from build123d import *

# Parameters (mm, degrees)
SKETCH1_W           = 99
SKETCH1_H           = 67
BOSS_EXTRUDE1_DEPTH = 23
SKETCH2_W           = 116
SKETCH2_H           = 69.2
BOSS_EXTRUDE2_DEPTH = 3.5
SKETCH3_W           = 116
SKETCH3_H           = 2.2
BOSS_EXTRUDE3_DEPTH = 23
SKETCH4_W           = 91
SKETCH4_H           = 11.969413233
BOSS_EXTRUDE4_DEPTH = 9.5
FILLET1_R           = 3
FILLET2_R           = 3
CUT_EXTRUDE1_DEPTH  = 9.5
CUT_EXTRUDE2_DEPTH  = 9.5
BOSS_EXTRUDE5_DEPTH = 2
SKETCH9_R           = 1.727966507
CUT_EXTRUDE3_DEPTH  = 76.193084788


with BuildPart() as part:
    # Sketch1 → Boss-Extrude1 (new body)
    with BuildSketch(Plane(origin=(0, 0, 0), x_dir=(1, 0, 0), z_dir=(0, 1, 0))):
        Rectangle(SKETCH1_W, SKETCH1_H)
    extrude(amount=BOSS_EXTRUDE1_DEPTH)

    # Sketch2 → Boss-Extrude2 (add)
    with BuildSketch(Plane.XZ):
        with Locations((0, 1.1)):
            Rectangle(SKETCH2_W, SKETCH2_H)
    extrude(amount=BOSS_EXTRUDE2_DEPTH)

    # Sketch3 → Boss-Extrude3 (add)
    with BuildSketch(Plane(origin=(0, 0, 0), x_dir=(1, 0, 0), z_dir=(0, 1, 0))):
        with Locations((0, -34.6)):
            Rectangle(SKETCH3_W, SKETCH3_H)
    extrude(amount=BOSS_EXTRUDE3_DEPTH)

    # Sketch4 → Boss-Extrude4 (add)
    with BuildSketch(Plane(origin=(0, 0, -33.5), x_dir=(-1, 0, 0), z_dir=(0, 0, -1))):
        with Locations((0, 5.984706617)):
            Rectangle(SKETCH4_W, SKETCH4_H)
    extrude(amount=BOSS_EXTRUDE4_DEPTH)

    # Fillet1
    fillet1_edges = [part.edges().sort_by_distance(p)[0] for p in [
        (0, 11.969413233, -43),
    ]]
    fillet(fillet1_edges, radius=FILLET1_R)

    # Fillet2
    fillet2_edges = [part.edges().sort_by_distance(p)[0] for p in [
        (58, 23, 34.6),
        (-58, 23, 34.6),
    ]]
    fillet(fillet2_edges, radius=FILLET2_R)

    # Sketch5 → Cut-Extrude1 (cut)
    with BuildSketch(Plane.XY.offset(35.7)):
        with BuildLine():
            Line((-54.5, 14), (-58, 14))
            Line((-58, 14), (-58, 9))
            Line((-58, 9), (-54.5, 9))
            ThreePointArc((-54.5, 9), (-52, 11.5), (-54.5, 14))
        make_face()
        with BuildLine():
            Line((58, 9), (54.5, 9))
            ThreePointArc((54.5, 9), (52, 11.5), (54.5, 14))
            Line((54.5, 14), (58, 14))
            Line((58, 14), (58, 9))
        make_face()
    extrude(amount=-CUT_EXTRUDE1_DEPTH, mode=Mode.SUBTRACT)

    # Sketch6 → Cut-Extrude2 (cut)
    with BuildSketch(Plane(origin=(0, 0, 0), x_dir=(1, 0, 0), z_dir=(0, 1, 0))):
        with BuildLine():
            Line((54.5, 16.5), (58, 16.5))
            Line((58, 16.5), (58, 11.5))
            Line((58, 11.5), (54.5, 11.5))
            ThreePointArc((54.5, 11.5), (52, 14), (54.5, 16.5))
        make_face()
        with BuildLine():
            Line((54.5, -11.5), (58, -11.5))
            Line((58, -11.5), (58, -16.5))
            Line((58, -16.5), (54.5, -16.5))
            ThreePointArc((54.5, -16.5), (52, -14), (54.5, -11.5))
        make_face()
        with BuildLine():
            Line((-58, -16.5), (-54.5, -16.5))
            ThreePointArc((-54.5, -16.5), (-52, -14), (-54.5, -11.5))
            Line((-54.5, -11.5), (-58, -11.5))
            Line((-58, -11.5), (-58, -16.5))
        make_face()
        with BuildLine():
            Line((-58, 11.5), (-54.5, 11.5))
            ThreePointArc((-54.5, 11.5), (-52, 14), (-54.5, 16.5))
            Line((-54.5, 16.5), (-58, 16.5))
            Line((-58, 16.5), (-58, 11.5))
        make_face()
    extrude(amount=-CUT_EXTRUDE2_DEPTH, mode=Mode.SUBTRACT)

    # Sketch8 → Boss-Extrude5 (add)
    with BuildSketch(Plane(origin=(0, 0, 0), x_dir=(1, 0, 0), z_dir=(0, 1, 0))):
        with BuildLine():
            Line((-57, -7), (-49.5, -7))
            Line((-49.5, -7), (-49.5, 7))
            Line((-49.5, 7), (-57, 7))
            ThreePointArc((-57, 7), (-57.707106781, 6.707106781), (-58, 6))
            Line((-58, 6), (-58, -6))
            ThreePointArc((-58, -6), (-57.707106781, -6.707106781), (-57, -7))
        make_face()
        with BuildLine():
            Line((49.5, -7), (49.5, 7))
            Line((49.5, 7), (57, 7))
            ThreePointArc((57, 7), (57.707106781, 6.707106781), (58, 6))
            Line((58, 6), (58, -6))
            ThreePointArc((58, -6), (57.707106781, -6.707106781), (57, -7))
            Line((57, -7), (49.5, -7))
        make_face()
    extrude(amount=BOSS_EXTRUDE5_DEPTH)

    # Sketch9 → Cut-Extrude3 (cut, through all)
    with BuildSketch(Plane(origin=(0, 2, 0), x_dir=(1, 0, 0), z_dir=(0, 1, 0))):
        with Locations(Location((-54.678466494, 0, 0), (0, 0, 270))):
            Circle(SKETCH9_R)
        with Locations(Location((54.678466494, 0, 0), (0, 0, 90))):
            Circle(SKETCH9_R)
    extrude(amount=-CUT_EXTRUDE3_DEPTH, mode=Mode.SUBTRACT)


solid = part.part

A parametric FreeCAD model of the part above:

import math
import FreeCAD as App
import Part
import Sketcher

V = App.Vector
Q = App.Units.Quantity


def edges_at(feature, points):
    """Names of the edges that pass closest to the given points."""
    edges = feature.Shape.Edges
    near = lambda p: min(range(len(edges)), key=lambda i: edges[i].distToShape(Part.Vertex(*p))[0])
    return sorted({f"Edge{near(p) + 1}" for p in points})


def add_polygon(sketch, points):
    """Adds a closed chain of lines whose ends are joined by coincident constraints."""
    first, n = sketch.GeometryCount, len(points)
    for a, b in zip(points, points[1:] + points[:1]):
        sketch.addGeometry(Part.LineSegment(App.Vector(*a, 0), App.Vector(*b, 0)), False)
    for i in range(n):
        sketch.addConstraint(Sketcher.Constraint("Coincident", first + i, 2, first + (i + 1) % n, 1))

doc = App.newDocument("Part")
body = doc.addObject("PartDesign::Body", "Body")

# Sketch on XZ plane
sketch1 = body.newObject("Sketcher::SketchObject", "Sketch")
sketch1.AttachmentSupport = (doc.getObject("XZ_Plane"), [""])
sketch1.MapMode = "FlatFace"
add_polygon(sketch1, [(-50, -34), (-50, 34), (50, 34), (50, -34)])  # lines 0-3
sketch1.addConstraint([
    Sketcher.Constraint("Vertical", 0),
    Sketcher.Constraint("Horizontal", 1),
    Sketcher.Constraint("Vertical", 2),
    Sketcher.Constraint("Horizontal", 3),
    Sketcher.Constraint("Symmetric", 0, 2, 2, 2, -1, 1),
    Sketcher.Constraint("DistanceX", 1, 1, 1, 2, Q("99 mm")),
    Sketcher.Constraint("DistanceY", 0, 1, 0, 2, Q("67 mm")),
])
pad1 = body.newObject("PartDesign::Pad", "Pad")
pad1.Profile = sketch1
pad1.Length = 23
pad1.Reversed = True

# Sketch on XZ plane
sketch2 = body.newObject("Sketcher::SketchObject", "Sketch001")
sketch2.AttachmentSupport = (doc.getObject("XZ_Plane"), [""])
sketch2.MapMode = "FlatFace"
add_polygon(sketch2, [(-58, 36), (-58, -34), (58, -34), (58, 36)])  # lines 0-3
sketch2.addConstraint([
    Sketcher.Constraint("Vertical", 0),
    Sketcher.Constraint("Horizontal", 1),
    Sketcher.Constraint("Vertical", 2),
    Sketcher.Constraint("Horizontal", 3),
    Sketcher.Constraint("DistanceX", 1, 1, 1, 2, Q("116 mm")),
    Sketcher.Constraint("DistanceY", 0, 2, 0, 1, Q("69.2 mm")),
    Sketcher.Constraint("DistanceX", 0, 2, -1, 1, Q("58 mm")),
    Sketcher.Constraint("DistanceY", 0, 2, -1, 1, Q("33.5 mm")),
])
pad2 = body.newObject("PartDesign::Pad", "Pad001")
pad2.Profile = sketch2
pad2.Length = 3.5

# Sketch on XZ plane
sketch3 = body.newObject("Sketcher::SketchObject", "Sketch002")
sketch3.AttachmentSupport = (doc.getObject("XZ_Plane"), [""])
sketch3.MapMode = "FlatFace"
add_polygon(sketch3, [(-58, 33.5), (-58, 35.7), (58, 35.7), (58, 33.5)])  # lines 0-3
sketch3.addConstraint([
    Sketcher.Constraint("Vertical", 0),
    Sketcher.Constraint("Horizontal", 1),
    Sketcher.Constraint("Vertical", 2),
    Sketcher.Constraint("Horizontal", 3),
    Sketcher.Constraint("DistanceX", 1, 1, 1, 2, Q("116 mm")),
    Sketcher.Constraint("DistanceY", 0, 1, 0, 2, Q("2.2 mm")),
    Sketcher.Constraint("DistanceX", 0, 2, -1, 1, Q("58 mm")),
    Sketcher.Constraint("DistanceY", -1, 1, 0, 2, Q("35.7 mm")),
])
pad3 = body.newObject("PartDesign::Pad", "Pad002")
pad3.Profile = sketch3
pad3.Length = 23
pad3.Reversed = True

# Sketch on XY plane
sketch4 = body.newObject("Sketcher::SketchObject", "Sketch003")
sketch4.AttachmentSupport = (doc.getObject("XY_Plane"), [""])
sketch4.MapMode = "FlatFace"
sketch4.AttachmentOffset = App.Placement(V(0, 0, -33.5), App.Rotation())
add_polygon(sketch4, [(46, 12), (46, 0), (-46, 0), (-46, 12)])  # lines 0-3
sketch4.addConstraint([
    Sketcher.Constraint("Vertical", 0),
    Sketcher.Constraint("Horizontal", 1),
    Sketcher.Constraint("Vertical", 2),
    Sketcher.Constraint("Horizontal", 3),
    Sketcher.Constraint("Symmetric", 0, 2, 1, 2, -1, 1),
    Sketcher.Constraint("DistanceX", 1, 2, 1, 1, Q("91 mm")),
    Sketcher.Constraint("DistanceY", 0, 2, 0, 1, Q("11.969413 mm")),
])
pad4 = body.newObject("PartDesign::Pad", "Pad003")
pad4.Profile = sketch4
pad4.Length = 9.5
pad4.Reversed = True
doc.recompute()

fillet = body.newObject("PartDesign::Fillet", "Fillet")
fillet.Base = (pad4, edges_at(pad4, [(0, 11.969, -43)]))
fillet.Radius = 3
doc.recompute()

fillet2 = body.newObject("PartDesign::Fillet", "Fillet001")
fillet2.Base = (fillet, edges_at(fillet, [(58, 23, 34.6), (-58, 23, 34.6)]))
fillet2.Radius = 3

# Sketch on XY plane
sketch5 = body.newObject("Sketcher::SketchObject", "Sketch004")
sketch5.AttachmentSupport = (doc.getObject("XY_Plane"), [""])
sketch5.MapMode = "FlatFace"
sketch5.AttachmentOffset = App.Placement(V(0, 0, 35.7), App.Rotation())
sketch5.addGeometry([
    Part.LineSegment(V(-54.5, 14, 0), V(-58, 14, 0)),  # 0
    Part.LineSegment(V(-58, 14, 0), V(-58, 9, 0)),  # 1
    Part.LineSegment(V(-58, 9, 0), V(-54.5, 9, 0)),  # 2
    Part.ArcOfCircle(Part.Circle(V(-54.5, 11.5, 0), V(0, 0, 1), 2.5), math.radians(-90), math.radians(90)),  # 3
    Part.LineSegment(V(54.5, 9, 0), V(58, 9, 0)),  # 4
    Part.LineSegment(V(58, 9, 0), V(58, 14, 0)),  # 5
    Part.LineSegment(V(58, 14, 0), V(54.5, 14, 0)),  # 6
    Part.ArcOfCircle(Part.Circle(V(54.5, 11.5, 0), V(0, 0, 1), 2.5), math.radians(90), math.radians(270)),  # 7
], False)
sketch5.addConstraint([
    Sketcher.Constraint("Coincident", 0, 2, 1, 1),
    Sketcher.Constraint("Coincident", 1, 2, 2, 1),
    Sketcher.Constraint("Tangent", 2, 2, 3, 1),
    Sketcher.Constraint("Tangent", 3, 2, 0, 1),
    Sketcher.Constraint("Coincident", 4, 2, 5, 1),
    Sketcher.Constraint("Coincident", 5, 2, 6, 1),
    Sketcher.Constraint("Tangent", 6, 2, 7, 1),
    Sketcher.Constraint("Tangent", 7, 2, 4, 1),
    Sketcher.Constraint("Horizontal", 0),
    Sketcher.Constraint("Vertical", 1),
    Sketcher.Constraint("Horizontal", 2),
    Sketcher.Constraint("Horizontal", 4),
    Sketcher.Constraint("Vertical", 5),
    Sketcher.Constraint("Horizontal", 6),
    Sketcher.Constraint("Equal", 3, 7),
    Sketcher.Constraint("Symmetric", 3, 3, 7, 3, -2),
    Sketcher.Constraint("Equal", 2, 4),
    Sketcher.Constraint("Radius", 3, Q("2.5 mm")),
    Sketcher.Constraint("DistanceX", 0, 2, 0, 1, Q("3.5 mm")),
    Sketcher.Constraint("DistanceX", 0, 2, -1, 1, Q("58 mm")),
    Sketcher.Constraint("DistanceY", -1, 1, 0, 2, Q("14 mm")),
])
pocket1 = body.newObject("PartDesign::Pocket", "Pocket")
pocket1.Profile = sketch5
pocket1.Length = 9.5

# Sketch on XZ plane
sketch6 = body.newObject("Sketcher::SketchObject", "Sketch005")
sketch6.AttachmentSupport = (doc.getObject("XZ_Plane"), [""])
sketch6.MapMode = "FlatFace"
sketch6.addGeometry([
    Part.LineSegment(V(58, -16.5, 0), V(54.5, -16.5, 0)),  # 0
    Part.ArcOfCircle(Part.Circle(V(54.5, -14, 0), V(0, 0, 1), 2.5), math.radians(90), math.radians(270)),  # 1
    Part.LineSegment(V(54.5, -11.5, 0), V(58, -11.5, 0)),  # 2
    Part.LineSegment(V(58, -11.5, 0), V(58, -16.5, 0)),  # 3
    Part.LineSegment(V(58, 11.5, 0), V(54.5, 11.5, 0)),  # 4
    Part.ArcOfCircle(Part.Circle(V(54.5, 14, 0), V(0, 0, 1), 2.5), math.radians(90), math.radians(270)),  # 5
    Part.LineSegment(V(54.5, 16.5, 0), V(58, 16.5, 0)),  # 6
    Part.LineSegment(V(58, 16.5, 0), V(58, 11.5, 0)),  # 7
    Part.LineSegment(V(-58, 16.5, 0), V(-54.5, 16.5, 0)),  # 8
    Part.ArcOfCircle(Part.Circle(V(-54.5, 14, 0), V(0, 0, 1), 2.5), math.radians(-90), math.radians(90)),  # 9
    Part.LineSegment(V(-54.5, 11.5, 0), V(-58, 11.5, 0)),  # 10
    Part.LineSegment(V(-58, 11.5, 0), V(-58, 16.5, 0)),  # 11
    Part.LineSegment(V(-58, -11.5, 0), V(-54.5, -11.5, 0)),  # 12
    Part.ArcOfCircle(Part.Circle(V(-54.5, -14, 0), V(0, 0, 1), 2.5), math.radians(-90), math.radians(90)),  # 13
    Part.LineSegment(V(-54.5, -16.5, 0), V(-58, -16.5, 0)),  # 14
    Part.LineSegment(V(-58, -16.5, 0), V(-58, -11.5, 0)),  # 15
], False)
sketch6.addConstraint([
    Sketcher.Constraint("Tangent", 0, 2, 1, 2),
    Sketcher.Constraint("Tangent", 1, 1, 2, 1),
    Sketcher.Constraint("Coincident", 2, 2, 3, 1),
    Sketcher.Constraint("Coincident", 3, 2, 0, 1),
    Sketcher.Constraint("Tangent", 4, 2, 5, 2),
    Sketcher.Constraint("Tangent", 5, 1, 6, 1),
    Sketcher.Constraint("Coincident", 6, 2, 7, 1),
    Sketcher.Constraint("Coincident", 7, 2, 4, 1),
    Sketcher.Constraint("Tangent", 8, 2, 9, 2),
    Sketcher.Constraint("Tangent", 9, 1, 10, 1),
    Sketcher.Constraint("Coincident", 10, 2, 11, 1),
    Sketcher.Constraint("Coincident", 11, 2, 8, 1),
    Sketcher.Constraint("Tangent", 12, 2, 13, 2),
    Sketcher.Constraint("Tangent", 13, 1, 14, 1),
    Sketcher.Constraint("Coincident", 14, 2, 15, 1),
    Sketcher.Constraint("Coincident", 15, 2, 12, 1),
    Sketcher.Constraint("Horizontal", 0),
    Sketcher.Constraint("Horizontal", 2),
    Sketcher.Constraint("Vertical", 3),
    Sketcher.Constraint("Horizontal", 4),
    Sketcher.Constraint("Horizontal", 6),
    Sketcher.Constraint("Vertical", 7),
    Sketcher.Constraint("Horizontal", 8),
    Sketcher.Constraint("Horizontal", 10),
    Sketcher.Constraint("Vertical", 11),
    Sketcher.Constraint("Horizontal", 12),
    Sketcher.Constraint("Horizontal", 14),
    Sketcher.Constraint("Vertical", 15),
    Sketcher.Constraint("Equal", 1, 5),
    Sketcher.Constraint("Equal", 5, 9),
    Sketcher.Constraint("Equal", 9, 13),
    Sketcher.Constraint("Symmetric", 1, 3, 9, 3, -1, 1),
    Sketcher.Constraint("Symmetric", 5, 3, 13, 3, -1, 1),
    Sketcher.Constraint("Symmetric", 5, 3, 9, 3, -2),
    Sketcher.Constraint("Vertical", 3, 2, 6, 2),
    Sketcher.Constraint("Vertical", 11, 2, 14, 2),
    Sketcher.Constraint("Equal", 6, 8),
    Sketcher.Constraint("Radius", 1, Q("2.5 mm")),
    Sketcher.Constraint("DistanceX", 0, 2, 0, 1, Q("3.5 mm")),
    Sketcher.Constraint("DistanceY", 1, 3, -1, 1, Q("14 mm")),
    Sketcher.Constraint("DistanceX", -1, 1, 2, 2, Q("58 mm")),
])
pocket2 = body.newObject("PartDesign::Pocket", "Pocket001")
pocket2.Profile = sketch6
pocket2.Length = 9.5
pocket2.Reversed = True

# Sketch on XZ plane
sketch7 = body.newObject("Sketcher::SketchObject", "Sketch006")
sketch7.AttachmentSupport = (doc.getObject("XZ_Plane"), [""])
sketch7.MapMode = "FlatFace"
sketch7.addGeometry([
    Part.LineSegment(V(-57, 7, 0), V(-49.5, 7, 0)),  # 0
    Part.LineSegment(V(-49.5, 7, 0), V(-49.5, -7, 0)),  # 1
    Part.LineSegment(V(-49.5, -7, 0), V(-57, -7, 0)),  # 2
    Part.ArcOfCircle(Part.Circle(V(-57, -6, 0), V(0, 0, 1), 1), math.radians(-180), math.radians(-90)),  # 3
    Part.LineSegment(V(-58, -6, 0), V(-58, 6, 0)),  # 4
    Part.ArcOfCircle(Part.Circle(V(-57, 6, 0), V(0, 0, 1), 1), math.radians(90), math.radians(180)),  # 5
    Part.LineSegment(V(49.5, -7, 0), V(49.5, 7, 0)),  # 6
    Part.LineSegment(V(49.5, 7, 0), V(57, 7, 0)),  # 7
    Part.ArcOfCircle(Part.Circle(V(57, 6, 0), V(0, 0, 1), 1), math.radians(0), math.radians(90)),  # 8
    Part.LineSegment(V(58, 6, 0), V(58, -6, 0)),  # 9
    Part.ArcOfCircle(Part.Circle(V(57, -6, 0), V(0, 0, 1), 1), math.radians(-90), math.radians(0)),  # 10
    Part.LineSegment(V(57, -7, 0), V(49.5, -7, 0)),  # 11
], False)
sketch7.addConstraint([
    Sketcher.Constraint("Coincident", 0, 2, 1, 1),
    Sketcher.Constraint("Coincident", 1, 2, 2, 1),
    Sketcher.Constraint("Tangent", 2, 2, 3, 2),
    Sketcher.Constraint("Tangent", 3, 1, 4, 1),
    Sketcher.Constraint("Tangent", 4, 2, 5, 2),
    Sketcher.Constraint("Tangent", 5, 1, 0, 1),
    Sketcher.Constraint("Coincident", 6, 2, 7, 1),
    Sketcher.Constraint("Tangent", 7, 2, 8, 2),
    Sketcher.Constraint("Tangent", 8, 1, 9, 1),
    Sketcher.Constraint("Tangent", 9, 2, 10, 2),
    Sketcher.Constraint("Tangent", 10, 1, 11, 1),
    Sketcher.Constraint("Coincident", 11, 2, 6, 1),
    Sketcher.Constraint("Horizontal", 0),
    Sketcher.Constraint("Vertical", 1),
    Sketcher.Constraint("Horizontal", 2),
    Sketcher.Constraint("Vertical", 4),
    Sketcher.Constraint("Vertical", 6),
    Sketcher.Constraint("Horizontal", 7),
    Sketcher.Constraint("Vertical", 9),
    Sketcher.Constraint("Horizontal", 11),
    Sketcher.Constraint("Equal", 3, 5),
    Sketcher.Constraint("Equal", 5, 8),
    Sketcher.Constraint("Equal", 8, 10),
    Sketcher.Constraint("Symmetric", 3, 3, 8, 3, -1, 1),
    Sketcher.Constraint("Symmetric", 0, 2, 11, 2, -1, 1),
    Sketcher.Constraint("Horizontal", 5, 3, 8, 3),
    Sketcher.Constraint("Radius", 3, Q("1 mm")),
    Sketcher.Constraint("DistanceY", 1, 2, 1, 1, Q("14 mm")),
    Sketcher.Constraint("DistanceX", 0, 1, 0, 2, Q("7.5 mm")),
    Sketcher.Constraint("DistanceX", 3, 3, -1, 1, Q("57 mm")),
])
pad5 = body.newObject("PartDesign::Pad", "Pad004")
pad5.Profile = sketch7
pad5.Length = 2
pad5.Reversed = True

# Sketch on XZ plane
sketch8 = body.newObject("Sketcher::SketchObject", "Sketch007")
sketch8.AttachmentSupport = (doc.getObject("XZ_Plane"), [""])
sketch8.MapMode = "FlatFace"
sketch8.AttachmentOffset = App.Placement(V(0, 0, -2), App.Rotation())
sketch8.addGeometry([
    Part.Circle(V(-54.7, 0, 0), V(0, 0, 1), 1.7),
    Part.Circle(V(54.7, 0, 0), V(0, 0, 1), 1.7),
], False)
sketch8.addConstraint([
    Sketcher.Constraint("Equal", 0, 1),
    Sketcher.Constraint("Symmetric", 0, 3, 1, 3, -1, 1),
    Sketcher.Constraint("PointOnObject", 0, 3, -1),
    Sketcher.Constraint("Diameter", 0, Q("3.455933 mm")),
    Sketcher.Constraint("DistanceX", 0, 3, -1, 1, Q("54.678466 mm")),
])
pocket3 = body.newObject("PartDesign::Pocket", "Pocket002")
pocket3.Profile = sketch8
pocket3.Type = "ThroughAll"
pocket3.Reversed = True

doc.recompute()
